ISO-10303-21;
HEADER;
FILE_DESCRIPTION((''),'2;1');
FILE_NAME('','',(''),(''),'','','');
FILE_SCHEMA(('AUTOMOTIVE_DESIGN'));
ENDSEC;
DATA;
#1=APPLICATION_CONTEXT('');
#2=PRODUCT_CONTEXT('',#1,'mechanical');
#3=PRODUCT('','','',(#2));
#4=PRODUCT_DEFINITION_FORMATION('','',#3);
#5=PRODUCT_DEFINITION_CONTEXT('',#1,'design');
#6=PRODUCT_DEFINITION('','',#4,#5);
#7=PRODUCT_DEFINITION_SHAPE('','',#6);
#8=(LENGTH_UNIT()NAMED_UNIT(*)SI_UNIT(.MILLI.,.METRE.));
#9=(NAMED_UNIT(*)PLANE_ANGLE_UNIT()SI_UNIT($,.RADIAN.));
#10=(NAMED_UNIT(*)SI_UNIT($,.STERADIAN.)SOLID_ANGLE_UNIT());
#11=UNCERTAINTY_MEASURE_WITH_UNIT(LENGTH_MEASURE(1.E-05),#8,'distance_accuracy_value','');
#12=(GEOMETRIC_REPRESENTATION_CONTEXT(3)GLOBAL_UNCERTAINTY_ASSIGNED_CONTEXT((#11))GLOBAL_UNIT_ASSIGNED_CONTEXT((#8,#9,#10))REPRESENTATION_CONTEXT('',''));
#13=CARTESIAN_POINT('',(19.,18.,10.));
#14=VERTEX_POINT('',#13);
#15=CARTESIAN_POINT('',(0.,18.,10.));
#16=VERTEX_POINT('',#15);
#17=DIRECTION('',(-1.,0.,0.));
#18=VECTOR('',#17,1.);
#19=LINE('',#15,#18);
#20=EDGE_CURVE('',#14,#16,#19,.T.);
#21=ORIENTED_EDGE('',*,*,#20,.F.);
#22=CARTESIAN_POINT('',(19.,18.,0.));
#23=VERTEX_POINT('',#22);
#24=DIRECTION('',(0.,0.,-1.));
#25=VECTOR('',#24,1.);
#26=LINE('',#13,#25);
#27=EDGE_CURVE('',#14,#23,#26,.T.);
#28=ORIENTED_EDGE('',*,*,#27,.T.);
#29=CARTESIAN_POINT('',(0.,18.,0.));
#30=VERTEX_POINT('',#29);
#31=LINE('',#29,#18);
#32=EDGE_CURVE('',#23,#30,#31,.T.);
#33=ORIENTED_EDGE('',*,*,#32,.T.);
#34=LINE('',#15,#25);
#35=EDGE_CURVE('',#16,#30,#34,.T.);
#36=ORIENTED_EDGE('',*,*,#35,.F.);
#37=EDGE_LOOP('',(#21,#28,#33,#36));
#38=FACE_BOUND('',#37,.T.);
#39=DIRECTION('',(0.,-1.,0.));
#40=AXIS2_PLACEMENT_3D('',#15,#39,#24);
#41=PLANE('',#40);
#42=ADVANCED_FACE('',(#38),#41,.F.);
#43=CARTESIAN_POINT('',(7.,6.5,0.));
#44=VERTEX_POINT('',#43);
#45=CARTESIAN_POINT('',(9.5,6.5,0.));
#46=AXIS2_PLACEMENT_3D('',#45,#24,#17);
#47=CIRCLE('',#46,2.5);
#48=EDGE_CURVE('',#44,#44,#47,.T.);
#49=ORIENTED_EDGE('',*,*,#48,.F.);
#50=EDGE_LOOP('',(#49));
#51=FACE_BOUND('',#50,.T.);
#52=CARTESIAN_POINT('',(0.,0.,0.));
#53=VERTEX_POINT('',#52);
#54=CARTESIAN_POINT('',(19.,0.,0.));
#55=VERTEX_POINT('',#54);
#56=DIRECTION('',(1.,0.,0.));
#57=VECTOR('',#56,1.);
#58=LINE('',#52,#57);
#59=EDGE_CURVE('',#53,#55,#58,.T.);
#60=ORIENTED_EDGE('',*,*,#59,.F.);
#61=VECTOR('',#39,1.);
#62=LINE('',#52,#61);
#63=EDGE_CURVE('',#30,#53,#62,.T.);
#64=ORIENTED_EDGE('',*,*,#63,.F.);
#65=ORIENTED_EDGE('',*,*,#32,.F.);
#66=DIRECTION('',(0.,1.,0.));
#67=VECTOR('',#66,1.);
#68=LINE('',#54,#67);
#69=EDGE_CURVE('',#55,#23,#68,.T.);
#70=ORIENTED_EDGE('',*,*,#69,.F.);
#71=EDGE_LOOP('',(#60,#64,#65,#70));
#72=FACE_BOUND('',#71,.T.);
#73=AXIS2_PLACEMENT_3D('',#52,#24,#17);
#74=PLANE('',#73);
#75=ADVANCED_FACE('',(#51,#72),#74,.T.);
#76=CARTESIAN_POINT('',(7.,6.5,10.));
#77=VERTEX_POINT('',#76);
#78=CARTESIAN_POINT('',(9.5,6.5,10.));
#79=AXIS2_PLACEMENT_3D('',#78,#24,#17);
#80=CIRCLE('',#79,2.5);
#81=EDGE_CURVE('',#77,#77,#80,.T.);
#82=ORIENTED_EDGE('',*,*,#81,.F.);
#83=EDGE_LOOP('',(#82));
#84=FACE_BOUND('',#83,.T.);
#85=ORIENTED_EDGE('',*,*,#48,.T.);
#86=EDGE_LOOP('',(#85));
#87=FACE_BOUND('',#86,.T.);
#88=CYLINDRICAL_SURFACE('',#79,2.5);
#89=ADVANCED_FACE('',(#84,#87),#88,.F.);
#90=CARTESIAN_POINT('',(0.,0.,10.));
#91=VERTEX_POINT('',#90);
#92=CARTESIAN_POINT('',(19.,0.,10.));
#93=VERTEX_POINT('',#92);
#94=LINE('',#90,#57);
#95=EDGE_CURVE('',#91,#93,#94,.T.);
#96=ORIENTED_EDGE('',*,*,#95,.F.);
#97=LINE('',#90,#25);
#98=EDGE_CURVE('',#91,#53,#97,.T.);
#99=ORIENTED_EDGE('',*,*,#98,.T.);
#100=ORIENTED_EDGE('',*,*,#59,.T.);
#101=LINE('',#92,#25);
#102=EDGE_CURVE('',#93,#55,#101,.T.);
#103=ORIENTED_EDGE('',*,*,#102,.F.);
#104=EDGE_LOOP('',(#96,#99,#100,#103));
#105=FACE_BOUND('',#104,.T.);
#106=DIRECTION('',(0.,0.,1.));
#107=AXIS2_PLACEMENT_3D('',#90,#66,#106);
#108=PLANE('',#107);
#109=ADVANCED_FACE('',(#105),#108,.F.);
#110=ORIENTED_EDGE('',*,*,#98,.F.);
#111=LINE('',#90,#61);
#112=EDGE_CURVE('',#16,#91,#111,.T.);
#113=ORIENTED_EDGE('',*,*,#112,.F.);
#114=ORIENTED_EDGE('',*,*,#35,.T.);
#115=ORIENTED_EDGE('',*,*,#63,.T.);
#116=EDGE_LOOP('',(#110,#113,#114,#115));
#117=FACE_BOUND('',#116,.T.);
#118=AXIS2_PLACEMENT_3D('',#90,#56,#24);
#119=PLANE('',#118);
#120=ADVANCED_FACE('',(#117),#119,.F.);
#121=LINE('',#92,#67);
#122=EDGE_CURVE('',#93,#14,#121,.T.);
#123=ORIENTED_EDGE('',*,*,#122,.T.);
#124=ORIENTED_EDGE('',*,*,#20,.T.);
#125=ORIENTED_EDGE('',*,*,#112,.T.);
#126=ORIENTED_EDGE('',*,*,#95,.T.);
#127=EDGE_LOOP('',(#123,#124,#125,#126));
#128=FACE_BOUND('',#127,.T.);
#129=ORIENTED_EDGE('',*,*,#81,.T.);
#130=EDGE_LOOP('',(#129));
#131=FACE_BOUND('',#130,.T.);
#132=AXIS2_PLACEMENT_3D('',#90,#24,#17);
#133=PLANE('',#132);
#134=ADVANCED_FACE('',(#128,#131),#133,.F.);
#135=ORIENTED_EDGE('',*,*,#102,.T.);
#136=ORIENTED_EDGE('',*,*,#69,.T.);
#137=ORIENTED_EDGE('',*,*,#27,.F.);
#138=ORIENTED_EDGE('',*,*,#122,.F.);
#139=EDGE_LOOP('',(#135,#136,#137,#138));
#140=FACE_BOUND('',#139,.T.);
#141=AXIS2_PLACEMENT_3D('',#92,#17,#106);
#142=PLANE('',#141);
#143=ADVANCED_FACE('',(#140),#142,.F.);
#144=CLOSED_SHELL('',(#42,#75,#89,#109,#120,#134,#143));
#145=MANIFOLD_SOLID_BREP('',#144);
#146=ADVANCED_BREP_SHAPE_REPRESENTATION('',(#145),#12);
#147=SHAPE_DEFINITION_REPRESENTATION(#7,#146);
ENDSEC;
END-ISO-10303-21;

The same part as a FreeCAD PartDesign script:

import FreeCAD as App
import Part
import Sketcher
Q = App.Units.Quantity

doc = App.newDocument("Part")
body = doc.addObject("PartDesign::Body", "Body")

sketch1 = doc.addObject("Sketcher::SketchObject", "Sketch")
body.addObject(sketch1)
sketch1.AttachmentSupport = (doc.XY_Plane, [""])
sketch1.MapMode = "FlatFace"
sketch1.addGeometry([
    Part.LineSegment(App.Vector(0, 18, 0), App.Vector(0, 0, 0)),
    Part.LineSegment(App.Vector(0, 0, 0), App.Vector(19, 0, 0)),
    Part.LineSegment(App.Vector(19, 0, 0), App.Vector(19, 18, 0)),
    Part.LineSegment(App.Vector(19, 18, 0), App.Vector(0, 18, 0)),
], False)
sketch1.addConstraint([
    Sketcher.Constraint("Coincident", 0, 2, 1, 1),
    Sketcher.Constraint("Coincident", 1, 2, 2, 1),
    Sketcher.Constraint("Coincident", 2, 2, 3, 1),
    Sketcher.Constraint("Coincident", 3, 2, 0, 1),
    Sketcher.Constraint("Vertical", 0),
    Sketcher.Constraint("Horizontal", 1),
    Sketcher.Constraint("Vertical", 2),
    Sketcher.Constraint("Horizontal", 3),
    Sketcher.Constraint("Coincident", 0, 2, -1, 1),
    Sketcher.Constraint("DistanceX", 1, 1, 1, 2, Q("19 mm")),
    Sketcher.Constraint("DistanceY", 0, 2, 0, 1, Q("18 mm")),
])
pad1 = doc.addObject("PartDesign::Pad", "Pad")
body.addObject(pad1)
pad1.Profile = sketch1
pad1.Length = 10

sketch2 = doc.addObject("Sketcher::SketchObject", "Sketch001")
body.addObject(sketch2)
sketch2.AttachmentSupport = (doc.XY_Plane, [""])
sketch2.MapMode = "FlatFace"
sketch2.addGeometry(Part.Circle(App.Vector(9.5, 6.5, 0), App.Vector(0, 0, 1), 2.5), False)
sketch2.addConstraint([
    Sketcher.Constraint("Diameter", 0, Q("5 mm")),
    Sketcher.Constraint("DistanceX", -1, 1, 0, 3, Q("9.5 mm")),
    Sketcher.Constraint("DistanceY", -1, 1, 0, 3, Q("6.5 mm")),
])
pocket1 = doc.addObject("PartDesign::Pocket", "Pocket")
body.addObject(pocket1)
pocket1.Profile = sketch2
pocket1.Type = "ThroughAll"
pocket1.Reversed = True

doc.recompute()
